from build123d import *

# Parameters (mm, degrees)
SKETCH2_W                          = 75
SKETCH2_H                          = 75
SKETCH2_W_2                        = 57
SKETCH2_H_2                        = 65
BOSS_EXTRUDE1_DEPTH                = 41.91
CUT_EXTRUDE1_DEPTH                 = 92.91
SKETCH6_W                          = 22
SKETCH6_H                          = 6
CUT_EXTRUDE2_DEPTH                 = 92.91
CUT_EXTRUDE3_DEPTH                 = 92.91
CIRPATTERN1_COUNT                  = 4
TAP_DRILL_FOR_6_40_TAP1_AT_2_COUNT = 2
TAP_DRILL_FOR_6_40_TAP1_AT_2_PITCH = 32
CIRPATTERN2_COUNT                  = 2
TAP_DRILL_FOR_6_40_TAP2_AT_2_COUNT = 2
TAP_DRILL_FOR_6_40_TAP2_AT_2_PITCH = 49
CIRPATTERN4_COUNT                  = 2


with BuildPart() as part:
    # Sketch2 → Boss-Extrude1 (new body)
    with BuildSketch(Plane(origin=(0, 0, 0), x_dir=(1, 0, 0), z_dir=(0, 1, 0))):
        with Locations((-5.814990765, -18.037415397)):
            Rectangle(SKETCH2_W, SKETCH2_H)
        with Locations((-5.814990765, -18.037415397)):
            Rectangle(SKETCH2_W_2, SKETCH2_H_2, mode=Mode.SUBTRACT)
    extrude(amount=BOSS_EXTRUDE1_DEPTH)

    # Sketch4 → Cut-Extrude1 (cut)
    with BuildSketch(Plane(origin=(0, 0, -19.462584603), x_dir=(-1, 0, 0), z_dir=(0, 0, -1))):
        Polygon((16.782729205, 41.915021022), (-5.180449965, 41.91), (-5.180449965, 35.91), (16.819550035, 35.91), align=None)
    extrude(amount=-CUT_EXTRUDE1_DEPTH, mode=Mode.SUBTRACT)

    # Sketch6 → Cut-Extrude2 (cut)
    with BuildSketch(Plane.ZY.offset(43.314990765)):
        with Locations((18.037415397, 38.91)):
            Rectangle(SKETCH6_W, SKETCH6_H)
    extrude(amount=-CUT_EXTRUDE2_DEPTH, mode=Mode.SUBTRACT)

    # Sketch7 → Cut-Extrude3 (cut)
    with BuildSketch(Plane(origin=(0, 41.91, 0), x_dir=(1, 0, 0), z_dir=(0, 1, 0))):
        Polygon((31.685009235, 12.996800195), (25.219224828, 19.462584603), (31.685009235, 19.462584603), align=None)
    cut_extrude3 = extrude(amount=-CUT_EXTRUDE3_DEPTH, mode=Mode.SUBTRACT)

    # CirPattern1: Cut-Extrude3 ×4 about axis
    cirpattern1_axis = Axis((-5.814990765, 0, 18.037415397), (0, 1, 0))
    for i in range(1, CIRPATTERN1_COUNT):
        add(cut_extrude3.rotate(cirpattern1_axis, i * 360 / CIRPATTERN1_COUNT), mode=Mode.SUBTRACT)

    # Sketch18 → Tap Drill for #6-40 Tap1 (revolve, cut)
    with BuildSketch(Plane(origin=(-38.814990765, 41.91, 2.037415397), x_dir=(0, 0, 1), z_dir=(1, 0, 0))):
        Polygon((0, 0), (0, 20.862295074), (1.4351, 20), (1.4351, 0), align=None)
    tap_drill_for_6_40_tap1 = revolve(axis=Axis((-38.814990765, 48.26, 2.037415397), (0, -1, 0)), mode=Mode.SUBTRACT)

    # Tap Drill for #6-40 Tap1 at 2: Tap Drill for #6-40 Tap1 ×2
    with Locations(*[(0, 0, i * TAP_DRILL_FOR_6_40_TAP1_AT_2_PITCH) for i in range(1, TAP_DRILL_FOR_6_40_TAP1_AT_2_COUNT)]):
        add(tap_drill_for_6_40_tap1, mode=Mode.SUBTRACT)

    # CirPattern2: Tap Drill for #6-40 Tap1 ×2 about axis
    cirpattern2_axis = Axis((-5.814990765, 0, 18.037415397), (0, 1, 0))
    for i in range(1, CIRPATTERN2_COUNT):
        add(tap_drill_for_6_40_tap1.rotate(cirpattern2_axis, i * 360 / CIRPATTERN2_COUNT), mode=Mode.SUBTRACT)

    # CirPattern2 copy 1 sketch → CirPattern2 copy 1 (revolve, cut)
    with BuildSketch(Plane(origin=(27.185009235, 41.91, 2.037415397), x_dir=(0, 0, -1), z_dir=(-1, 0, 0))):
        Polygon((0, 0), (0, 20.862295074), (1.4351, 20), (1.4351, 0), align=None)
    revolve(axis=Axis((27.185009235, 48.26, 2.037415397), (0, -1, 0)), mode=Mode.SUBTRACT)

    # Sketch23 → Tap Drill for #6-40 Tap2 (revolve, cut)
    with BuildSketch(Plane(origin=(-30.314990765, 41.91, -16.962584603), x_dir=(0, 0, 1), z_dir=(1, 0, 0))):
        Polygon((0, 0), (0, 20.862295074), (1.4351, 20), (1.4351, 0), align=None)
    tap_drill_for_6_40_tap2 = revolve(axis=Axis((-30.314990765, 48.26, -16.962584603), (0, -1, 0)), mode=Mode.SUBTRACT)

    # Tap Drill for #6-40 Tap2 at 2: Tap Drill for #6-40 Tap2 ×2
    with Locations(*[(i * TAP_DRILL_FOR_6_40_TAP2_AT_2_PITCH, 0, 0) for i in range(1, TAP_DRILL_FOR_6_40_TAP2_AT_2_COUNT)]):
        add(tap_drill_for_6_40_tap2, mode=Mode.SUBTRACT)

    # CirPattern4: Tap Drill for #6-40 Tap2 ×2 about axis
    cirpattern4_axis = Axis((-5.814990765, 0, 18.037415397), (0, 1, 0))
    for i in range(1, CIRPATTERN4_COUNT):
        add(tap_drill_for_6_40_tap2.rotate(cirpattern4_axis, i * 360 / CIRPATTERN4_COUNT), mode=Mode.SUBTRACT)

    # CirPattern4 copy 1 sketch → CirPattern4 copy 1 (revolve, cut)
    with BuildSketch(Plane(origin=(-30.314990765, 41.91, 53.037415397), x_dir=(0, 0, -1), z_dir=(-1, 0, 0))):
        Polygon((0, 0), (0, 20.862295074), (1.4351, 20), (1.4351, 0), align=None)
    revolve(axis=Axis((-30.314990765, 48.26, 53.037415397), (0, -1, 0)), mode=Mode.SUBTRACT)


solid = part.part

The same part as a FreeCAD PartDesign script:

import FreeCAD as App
import Part
import Sketcher

V = App.Vector
Q = App.Units.Quantity


def add_polygon(sketch, points):
    """Adds a closed chain of lines whose ends are joined by coincident constraints."""
    first, n = sketch.GeometryCount, len(points)
    for a, b in zip(points, points[1:] + points[:1]):
        sketch.addGeometry(Part.LineSegment(App.Vector(*a, 0), App.Vector(*b, 0)), False)
    for i in range(n):
        sketch.addConstraint(Sketcher.Constraint("Coincident", first + i, 2, first + (i + 1) % n, 1))

doc = App.newDocument("Part")
body = doc.addObject("PartDesign::Body", "Body")

# Sketch on XZ plane
sketch1 = body.newObject("Sketcher::SketchObject", "Sketch")
sketch1.AttachmentSupport = (doc.getObject("XZ_Plane"), [""])
sketch1.MapMode = "FlatFace"
add_polygon(sketch1, [(-43, -19), (-43, 56), (32, 56), (32, -19)])  # lines 0-3
add_polygon(sketch1, [(23, 51), (-34, 51), (-34, -14), (23, -14)])  # lines 4-7
sketch1.addConstraint([
    Sketcher.Constraint("Vertical", 0),
    Sketcher.Constraint("Horizontal", 1),
    Sketcher.Constraint("Vertical", 2),
    Sketcher.Constraint("Horizontal", 3),
    Sketcher.Constraint("Horizontal", 4),
    Sketcher.Constraint("Vertical", 5),
    Sketcher.Constraint("Horizontal", 6),
    Sketcher.Constraint("Vertical", 7),
    Sketcher.Constraint("Equal", 3, 0),
    Sketcher.Constraint("DistanceX", 1, 1, 1, 2, Q("75 mm")),
    Sketcher.Constraint("DistanceX", 4, 2, 4, 1, Q("57 mm")),
    Sketcher.Constraint("DistanceY", 5, 2, 5, 1, Q("65 mm")),
    Sketcher.Constraint("DistanceX", 0, 2, 4, 2, Q("9 mm")),
    Sketcher.Constraint("DistanceY", 4, 2, 0, 2, Q("5 mm")),
    Sketcher.Constraint("DistanceX", 0, 2, -1, 1, Q("43.314991 mm")),
    Sketcher.Constraint("DistanceY", -1, 1, 0, 2, Q("55.537415 mm")),
])
pad1 = body.newObject("PartDesign::Pad", "Pad")
pad1.Profile = sketch1
pad1.Length = 41.91
pad1.Reversed = True

# Sketch on XY plane
sketch2 = body.newObject("Sketcher::SketchObject", "Sketch001")
sketch2.AttachmentSupport = (doc.getObject("XY_Plane"), [""])
sketch2.MapMode = "FlatFace"
sketch2.AttachmentOffset = App.Placement(V(0, 0, -19.462585), App.Rotation())
add_polygon(sketch2, [(-17, 42), (5, 42), (5, 36), (-17, 36)])  # lines 0-3
sketch2.addConstraint([
    Sketcher.Constraint("Vertical", 1),
    Sketcher.Constraint("Horizontal", 2),
    Sketcher.Constraint("DistanceX", 2, 2, 2, 1, Q("22 mm")),
    Sketcher.Constraint("DistanceY", 1, 2, 1, 1, Q("6 mm")),
    Sketcher.Constraint("DistanceY", -1, 1, 0, 2, Q("41.91 mm")),
    Sketcher.Constraint("Distance", 0, Q("21.96318 mm")),
    Sketcher.Constraint("DistanceX", -1, 1, 0, 2, Q("5.18045 mm")),
    Sketcher.Constraint("DistanceY", -1, 1, 3, 2, Q("41.915021 mm")),
])
pocket1 = body.newObject("PartDesign::Pocket", "Pocket")
pocket1.Profile = sketch2
pocket1.Length = 92.91
pocket1.Reversed = True

# Sketch on YZ plane
sketch3 = body.newObject("Sketcher::SketchObject", "Sketch002")
sketch3.AttachmentSupport = (doc.getObject("YZ_Plane"), [""])
sketch3.MapMode = "FlatFace"
sketch3.AttachmentOffset = App.Placement(V(0, 0, -43.314991), App.Rotation())
add_polygon(sketch3, [(42, 7), (36, 7), (36, 29), (42, 29)])  # lines 0-3
sketch3.addConstraint([
    Sketcher.Constraint("Horizontal", 0),
    Sketcher.Constraint("Vertical", 1),
    Sketcher.Constraint("Horizontal", 2),
    Sketcher.Constraint("Vertical", 3),
    Sketcher.Constraint("DistanceX", 0, 2, 0, 1, Q("6 mm")),
    Sketcher.Constraint("DistanceY", 1, 1, 1, 2, Q("22 mm")),
    Sketcher.Constraint("DistanceX", -1, 1, 0, 2, Q("35.91 mm")),
    Sketcher.Constraint("DistanceY", -1, 1, 0, 2, Q("7.037415 mm")),
])
pocket2 = body.newObject("PartDesign::Pocket", "Pocket001")
pocket2.Profile = sketch3
pocket2.Length = 92.91
pocket2.Reversed = True

# Sketch on XZ plane
sketch4 = body.newObject("Sketcher::SketchObject", "Sketch003")
sketch4.AttachmentSupport = (doc.getObject("XZ_Plane"), [""])
sketch4.MapMode = "FlatFace"
sketch4.AttachmentOffset = App.Placement(V(0, 0, -41.91), App.Rotation())
add_polygon(sketch4, [(25, -19), (32, -13), (32, -19)])  # lines 0-2
sketch4.addConstraint([
    Sketcher.Constraint("Vertical", 1),
    Sketcher.Constraint("Horizontal", 2),
    Sketcher.Constraint("Equal", 2, 1),
    Sketcher.Constraint("Distance", 0, Q("9.144 mm")),
    Sketcher.Constraint("DistanceY", 0, 2, -1, 1, Q("12.9968 mm")),
    Sketcher.Constraint("DistanceX", -1, 1, 0, 2, Q("31.685009 mm")),
])
pocket3 = body.newObject("PartDesign::Pocket", "Pocket002")
pocket3.Profile = sketch4
pocket3.Length = 92.91
pocket3.Reversed = True
doc.recompute()

datumline = body.newObject("PartDesign::Line", "DatumLine")
datumline.Placement = App.Placement(V(-5.814991, 0, 18.037415), App.Rotation(V(0, 0, 1), V(0, 1, 0)))
polarpattern = body.newObject("PartDesign::PolarPattern", "PolarPattern")
polarpattern.Originals = [pocket3]
polarpattern.Axis = (datumline, [""])
polarpattern.Angle = 360
polarpattern.Occurrences = 4
body.Tip = polarpattern

# Sketch on YZ plane
sketch5 = body.newObject("Sketcher::SketchObject", "Sketch004")
sketch5.AttachmentSupport = (doc.getObject("YZ_Plane"), [""])
sketch5.MapMode = "FlatFace"
sketch5.AttachmentOffset = App.Placement(V(0, 0, -38.814991), App.Rotation())
add_polygon(sketch5, [(21, 2), (41.9, 2), (41.9, 3.5), (21.9, 3.5)])  # lines 0-3
sketch5.addGeometry(Part.LineSegment(V(41.9, 2, 0), V(21, 2, 0)), True)  # axis
sketch5.addConstraint([
    Sketcher.Constraint("Horizontal", 0),
    Sketcher.Constraint("Vertical", 1),
    Sketcher.Constraint("Horizontal", 2),
    Sketcher.Constraint("Horizontal", 4),
    Sketcher.Constraint("Coincident", 4, 1, 0, 2),
    Sketcher.Constraint("Equal", 0, 4),
    Sketcher.Constraint("DistanceX", 2, 2, 2, 1, Q("20 mm")),
    Sketcher.Constraint("Angle", 3, Q("-121 deg")),
    Sketcher.Constraint("DistanceX", -1, 1, 0, 2, Q("41.91 mm")),
    Sketcher.Constraint("DistanceY", 1, 1, 1, 2, Q("1.4351 mm")),
    Sketcher.Constraint("DistanceY", -1, 1, 0, 2, Q("2.037415 mm")),
])
groove = body.newObject("PartDesign::Groove", "Groove")
groove.Profile = sketch5
groove.ReferenceAxis = (sketch5, ["Axis0"])
groove.Angle = 360
doc.recompute()

linearpattern = body.newObject("PartDesign::LinearPattern", "LinearPattern")
linearpattern.Originals = [groove]
linearpattern.Direction = (doc.getObject("Z_Axis"), [""])
linearpattern.Mode = "offset"
linearpattern.Offset = 32
linearpattern.Occurrences = 2
body.Tip = linearpattern
doc.recompute()

datumline2 = body.newObject("PartDesign::Line", "DatumLine001")
datumline2.Placement = App.Placement(V(-5.814991, 0, 18.037415), App.Rotation(V(0, 0, 1), V(0, 1, 0)))
polarpattern2 = body.newObject("PartDesign::PolarPattern", "PolarPattern001")
polarpattern2.Originals = [groove]
polarpattern2.Axis = (datumline2, [""])
polarpattern2.Angle = 360
polarpattern2.Occurrences = 2
body.Tip = polarpattern2

# Sketch on YZ plane
sketch6 = body.newObject("Sketcher::SketchObject", "Sketch005")
sketch6.AttachmentSupport = (doc.getObject("YZ_Plane"), [""])
sketch6.MapMode = "FlatFace"
sketch6.AttachmentOffset = App.Placement(V(0, 0, 27.185009), App.Rotation())
add_polygon(sketch6, [(21, 2), (41.9, 2), (41.9, 0.6), (21.9, 0.6)])  # lines 0-3
sketch6.addGeometry(Part.LineSegment(V(41.9, 2, 0), V(21, 2, 0)), True)  # axis
sketch6.addConstraint([
    Sketcher.Constraint("Horizontal", 0),
    Sketcher.Constraint("Vertical", 1),
    Sketcher.Constraint("Horizontal", 2),
    Sketcher.Constraint("Horizontal", 4),
    Sketcher.Constraint("Coincident", 4, 1, 0, 2),
    Sketcher.Constraint("Equal", 0, 4),
    Sketcher.Constraint("DistanceX", 2, 2, 2, 1, Q("20 mm")),
    Sketcher.Constraint("Angle", 3, Q("121 deg")),
    Sketcher.Constraint("DistanceX", -1, 1, 0, 2, Q("41.91 mm")),
    Sketcher.Constraint("DistanceY", 1, 2, 1, 1, Q("1.4351 mm")),
    Sketcher.Constraint("DistanceY", -1, 1, 0, 2, Q("2.037415 mm")),
])
groove2 = body.newObject("PartDesign::Groove", "Groove001")
groove2.Profile = sketch6
groove2.ReferenceAxis = (sketch6, ["Axis0"])
groove2.Angle = 360

# Sketch on YZ plane
sketch7 = body.newObject("Sketcher::SketchObject", "Sketch006")
sketch7.AttachmentSupport = (doc.getObject("YZ_Plane"), [""])
sketch7.MapMode = "FlatFace"
sketch7.AttachmentOffset = App.Placement(V(0, 0, -30.314991), App.Rotation())
add_polygon(sketch7, [(21, -17), (41.9, -17), (41.9, -15.5), (21.9, -15.5)])  # lines 0-3
sketch7.addGeometry(Part.LineSegment(V(41.9, -17, 0), V(21, -17, 0)), True)  # axis
sketch7.addConstraint([
    Sketcher.Constraint("Horizontal", 0),
    Sketcher.Constraint("Vertical", 1),
    Sketcher.Constraint("Horizontal", 2),
    Sketcher.Constraint("Horizontal", 4),
    Sketcher.Constraint("Coincident", 4, 1, 0, 2),
    Sketcher.Constraint("Equal", 0, 4),
    Sketcher.Constraint("DistanceX", 2, 2, 2, 1, Q("20 mm")),
    Sketcher.Constraint("Angle", 3, Q("-121 deg")),
    Sketcher.Constraint("DistanceX", -1, 1, 0, 2, Q("41.91 mm")),
    Sketcher.Constraint("DistanceY", 1, 1, 1, 2, Q("1.4351 mm")),
    Sketcher.Constraint("DistanceY", 0, 2, -1, 1, Q("16.962585 mm")),
])
groove3 = body.newObject("PartDesign::Groove", "Groove002")
groove3.Profile = sketch7
groove3.ReferenceAxis = (sketch7, ["Axis0"])
groove3.Angle = 360
doc.recompute()

linearpattern2 = body.newObject("PartDesign::LinearPattern", "LinearPattern001")
linearpattern2.Originals = [groove3]
linearpattern2.Direction = (doc.getObject("X_Axis"), [""])
linearpattern2.Mode = "offset"
linearpattern2.Offset = 49
linearpattern2.Occurrences = 2
body.Tip = linearpattern2
doc.recompute()

datumline3 = body.newObject("PartDesign::Line", "DatumLine002")
datumline3.Placement = App.Placement(V(-5.814991, 0, 18.037415), App.Rotation(V(0, 0, 1), V(0, 1, 0)))
polarpattern3 = body.newObject("PartDesign::PolarPattern", "PolarPattern002")
polarpattern3.Originals = [groove3]
polarpattern3.Axis = (datumline3, [""])
polarpattern3.Angle = 360
polarpattern3.Occurrences = 2
body.Tip = polarpattern3

# Sketch on YZ plane
sketch8 = body.newObject("Sketcher::SketchObject", "Sketch007")
sketch8.AttachmentSupport = (doc.getObject("YZ_Plane"), [""])
sketch8.MapMode = "FlatFace"
sketch8.AttachmentOffset = App.Placement(V(0, 0, -30.314991), App.Rotation())
add_polygon(sketch8, [(21, 53), (41.9, 53), (41.9, 51.6), (21.9, 51.6)])  # lines 0-3
sketch8.addGeometry(Part.LineSegment(V(41.9, 53, 0), V(21, 53, 0)), True)  # axis
sketch8.addConstraint([
    Sketcher.Constraint("Horizontal", 0),
    Sketcher.Constraint("Vertical", 1),
    Sketcher.Constraint("Horizontal", 2),
    Sketcher.Constraint("Horizontal", 4),
    Sketcher.Constraint("Coincident", 4, 1, 0, 2),
    Sketcher.Constraint("Equal", 0, 4),
    Sketcher.Constraint("DistanceX", 2, 2, 2, 1, Q("20 mm")),
    Sketcher.Constraint("Angle", 3, Q("121 deg")),
    Sketcher.Constraint("DistanceX", -1, 1, 0, 2, Q("41.91 mm")),
    Sketcher.Constraint("DistanceY", 1, 2, 1, 1, Q("1.4351 mm")),
    Sketcher.Constraint("DistanceY", -1, 1, 0, 2, Q("53.037415 mm")),
])
groove4 = body.newObject("PartDesign::Groove", "Groove003")
groove4.Profile = sketch8
groove4.ReferenceAxis = (sketch8, ["Axis0"])
groove4.Angle = 360

doc.recompute()
